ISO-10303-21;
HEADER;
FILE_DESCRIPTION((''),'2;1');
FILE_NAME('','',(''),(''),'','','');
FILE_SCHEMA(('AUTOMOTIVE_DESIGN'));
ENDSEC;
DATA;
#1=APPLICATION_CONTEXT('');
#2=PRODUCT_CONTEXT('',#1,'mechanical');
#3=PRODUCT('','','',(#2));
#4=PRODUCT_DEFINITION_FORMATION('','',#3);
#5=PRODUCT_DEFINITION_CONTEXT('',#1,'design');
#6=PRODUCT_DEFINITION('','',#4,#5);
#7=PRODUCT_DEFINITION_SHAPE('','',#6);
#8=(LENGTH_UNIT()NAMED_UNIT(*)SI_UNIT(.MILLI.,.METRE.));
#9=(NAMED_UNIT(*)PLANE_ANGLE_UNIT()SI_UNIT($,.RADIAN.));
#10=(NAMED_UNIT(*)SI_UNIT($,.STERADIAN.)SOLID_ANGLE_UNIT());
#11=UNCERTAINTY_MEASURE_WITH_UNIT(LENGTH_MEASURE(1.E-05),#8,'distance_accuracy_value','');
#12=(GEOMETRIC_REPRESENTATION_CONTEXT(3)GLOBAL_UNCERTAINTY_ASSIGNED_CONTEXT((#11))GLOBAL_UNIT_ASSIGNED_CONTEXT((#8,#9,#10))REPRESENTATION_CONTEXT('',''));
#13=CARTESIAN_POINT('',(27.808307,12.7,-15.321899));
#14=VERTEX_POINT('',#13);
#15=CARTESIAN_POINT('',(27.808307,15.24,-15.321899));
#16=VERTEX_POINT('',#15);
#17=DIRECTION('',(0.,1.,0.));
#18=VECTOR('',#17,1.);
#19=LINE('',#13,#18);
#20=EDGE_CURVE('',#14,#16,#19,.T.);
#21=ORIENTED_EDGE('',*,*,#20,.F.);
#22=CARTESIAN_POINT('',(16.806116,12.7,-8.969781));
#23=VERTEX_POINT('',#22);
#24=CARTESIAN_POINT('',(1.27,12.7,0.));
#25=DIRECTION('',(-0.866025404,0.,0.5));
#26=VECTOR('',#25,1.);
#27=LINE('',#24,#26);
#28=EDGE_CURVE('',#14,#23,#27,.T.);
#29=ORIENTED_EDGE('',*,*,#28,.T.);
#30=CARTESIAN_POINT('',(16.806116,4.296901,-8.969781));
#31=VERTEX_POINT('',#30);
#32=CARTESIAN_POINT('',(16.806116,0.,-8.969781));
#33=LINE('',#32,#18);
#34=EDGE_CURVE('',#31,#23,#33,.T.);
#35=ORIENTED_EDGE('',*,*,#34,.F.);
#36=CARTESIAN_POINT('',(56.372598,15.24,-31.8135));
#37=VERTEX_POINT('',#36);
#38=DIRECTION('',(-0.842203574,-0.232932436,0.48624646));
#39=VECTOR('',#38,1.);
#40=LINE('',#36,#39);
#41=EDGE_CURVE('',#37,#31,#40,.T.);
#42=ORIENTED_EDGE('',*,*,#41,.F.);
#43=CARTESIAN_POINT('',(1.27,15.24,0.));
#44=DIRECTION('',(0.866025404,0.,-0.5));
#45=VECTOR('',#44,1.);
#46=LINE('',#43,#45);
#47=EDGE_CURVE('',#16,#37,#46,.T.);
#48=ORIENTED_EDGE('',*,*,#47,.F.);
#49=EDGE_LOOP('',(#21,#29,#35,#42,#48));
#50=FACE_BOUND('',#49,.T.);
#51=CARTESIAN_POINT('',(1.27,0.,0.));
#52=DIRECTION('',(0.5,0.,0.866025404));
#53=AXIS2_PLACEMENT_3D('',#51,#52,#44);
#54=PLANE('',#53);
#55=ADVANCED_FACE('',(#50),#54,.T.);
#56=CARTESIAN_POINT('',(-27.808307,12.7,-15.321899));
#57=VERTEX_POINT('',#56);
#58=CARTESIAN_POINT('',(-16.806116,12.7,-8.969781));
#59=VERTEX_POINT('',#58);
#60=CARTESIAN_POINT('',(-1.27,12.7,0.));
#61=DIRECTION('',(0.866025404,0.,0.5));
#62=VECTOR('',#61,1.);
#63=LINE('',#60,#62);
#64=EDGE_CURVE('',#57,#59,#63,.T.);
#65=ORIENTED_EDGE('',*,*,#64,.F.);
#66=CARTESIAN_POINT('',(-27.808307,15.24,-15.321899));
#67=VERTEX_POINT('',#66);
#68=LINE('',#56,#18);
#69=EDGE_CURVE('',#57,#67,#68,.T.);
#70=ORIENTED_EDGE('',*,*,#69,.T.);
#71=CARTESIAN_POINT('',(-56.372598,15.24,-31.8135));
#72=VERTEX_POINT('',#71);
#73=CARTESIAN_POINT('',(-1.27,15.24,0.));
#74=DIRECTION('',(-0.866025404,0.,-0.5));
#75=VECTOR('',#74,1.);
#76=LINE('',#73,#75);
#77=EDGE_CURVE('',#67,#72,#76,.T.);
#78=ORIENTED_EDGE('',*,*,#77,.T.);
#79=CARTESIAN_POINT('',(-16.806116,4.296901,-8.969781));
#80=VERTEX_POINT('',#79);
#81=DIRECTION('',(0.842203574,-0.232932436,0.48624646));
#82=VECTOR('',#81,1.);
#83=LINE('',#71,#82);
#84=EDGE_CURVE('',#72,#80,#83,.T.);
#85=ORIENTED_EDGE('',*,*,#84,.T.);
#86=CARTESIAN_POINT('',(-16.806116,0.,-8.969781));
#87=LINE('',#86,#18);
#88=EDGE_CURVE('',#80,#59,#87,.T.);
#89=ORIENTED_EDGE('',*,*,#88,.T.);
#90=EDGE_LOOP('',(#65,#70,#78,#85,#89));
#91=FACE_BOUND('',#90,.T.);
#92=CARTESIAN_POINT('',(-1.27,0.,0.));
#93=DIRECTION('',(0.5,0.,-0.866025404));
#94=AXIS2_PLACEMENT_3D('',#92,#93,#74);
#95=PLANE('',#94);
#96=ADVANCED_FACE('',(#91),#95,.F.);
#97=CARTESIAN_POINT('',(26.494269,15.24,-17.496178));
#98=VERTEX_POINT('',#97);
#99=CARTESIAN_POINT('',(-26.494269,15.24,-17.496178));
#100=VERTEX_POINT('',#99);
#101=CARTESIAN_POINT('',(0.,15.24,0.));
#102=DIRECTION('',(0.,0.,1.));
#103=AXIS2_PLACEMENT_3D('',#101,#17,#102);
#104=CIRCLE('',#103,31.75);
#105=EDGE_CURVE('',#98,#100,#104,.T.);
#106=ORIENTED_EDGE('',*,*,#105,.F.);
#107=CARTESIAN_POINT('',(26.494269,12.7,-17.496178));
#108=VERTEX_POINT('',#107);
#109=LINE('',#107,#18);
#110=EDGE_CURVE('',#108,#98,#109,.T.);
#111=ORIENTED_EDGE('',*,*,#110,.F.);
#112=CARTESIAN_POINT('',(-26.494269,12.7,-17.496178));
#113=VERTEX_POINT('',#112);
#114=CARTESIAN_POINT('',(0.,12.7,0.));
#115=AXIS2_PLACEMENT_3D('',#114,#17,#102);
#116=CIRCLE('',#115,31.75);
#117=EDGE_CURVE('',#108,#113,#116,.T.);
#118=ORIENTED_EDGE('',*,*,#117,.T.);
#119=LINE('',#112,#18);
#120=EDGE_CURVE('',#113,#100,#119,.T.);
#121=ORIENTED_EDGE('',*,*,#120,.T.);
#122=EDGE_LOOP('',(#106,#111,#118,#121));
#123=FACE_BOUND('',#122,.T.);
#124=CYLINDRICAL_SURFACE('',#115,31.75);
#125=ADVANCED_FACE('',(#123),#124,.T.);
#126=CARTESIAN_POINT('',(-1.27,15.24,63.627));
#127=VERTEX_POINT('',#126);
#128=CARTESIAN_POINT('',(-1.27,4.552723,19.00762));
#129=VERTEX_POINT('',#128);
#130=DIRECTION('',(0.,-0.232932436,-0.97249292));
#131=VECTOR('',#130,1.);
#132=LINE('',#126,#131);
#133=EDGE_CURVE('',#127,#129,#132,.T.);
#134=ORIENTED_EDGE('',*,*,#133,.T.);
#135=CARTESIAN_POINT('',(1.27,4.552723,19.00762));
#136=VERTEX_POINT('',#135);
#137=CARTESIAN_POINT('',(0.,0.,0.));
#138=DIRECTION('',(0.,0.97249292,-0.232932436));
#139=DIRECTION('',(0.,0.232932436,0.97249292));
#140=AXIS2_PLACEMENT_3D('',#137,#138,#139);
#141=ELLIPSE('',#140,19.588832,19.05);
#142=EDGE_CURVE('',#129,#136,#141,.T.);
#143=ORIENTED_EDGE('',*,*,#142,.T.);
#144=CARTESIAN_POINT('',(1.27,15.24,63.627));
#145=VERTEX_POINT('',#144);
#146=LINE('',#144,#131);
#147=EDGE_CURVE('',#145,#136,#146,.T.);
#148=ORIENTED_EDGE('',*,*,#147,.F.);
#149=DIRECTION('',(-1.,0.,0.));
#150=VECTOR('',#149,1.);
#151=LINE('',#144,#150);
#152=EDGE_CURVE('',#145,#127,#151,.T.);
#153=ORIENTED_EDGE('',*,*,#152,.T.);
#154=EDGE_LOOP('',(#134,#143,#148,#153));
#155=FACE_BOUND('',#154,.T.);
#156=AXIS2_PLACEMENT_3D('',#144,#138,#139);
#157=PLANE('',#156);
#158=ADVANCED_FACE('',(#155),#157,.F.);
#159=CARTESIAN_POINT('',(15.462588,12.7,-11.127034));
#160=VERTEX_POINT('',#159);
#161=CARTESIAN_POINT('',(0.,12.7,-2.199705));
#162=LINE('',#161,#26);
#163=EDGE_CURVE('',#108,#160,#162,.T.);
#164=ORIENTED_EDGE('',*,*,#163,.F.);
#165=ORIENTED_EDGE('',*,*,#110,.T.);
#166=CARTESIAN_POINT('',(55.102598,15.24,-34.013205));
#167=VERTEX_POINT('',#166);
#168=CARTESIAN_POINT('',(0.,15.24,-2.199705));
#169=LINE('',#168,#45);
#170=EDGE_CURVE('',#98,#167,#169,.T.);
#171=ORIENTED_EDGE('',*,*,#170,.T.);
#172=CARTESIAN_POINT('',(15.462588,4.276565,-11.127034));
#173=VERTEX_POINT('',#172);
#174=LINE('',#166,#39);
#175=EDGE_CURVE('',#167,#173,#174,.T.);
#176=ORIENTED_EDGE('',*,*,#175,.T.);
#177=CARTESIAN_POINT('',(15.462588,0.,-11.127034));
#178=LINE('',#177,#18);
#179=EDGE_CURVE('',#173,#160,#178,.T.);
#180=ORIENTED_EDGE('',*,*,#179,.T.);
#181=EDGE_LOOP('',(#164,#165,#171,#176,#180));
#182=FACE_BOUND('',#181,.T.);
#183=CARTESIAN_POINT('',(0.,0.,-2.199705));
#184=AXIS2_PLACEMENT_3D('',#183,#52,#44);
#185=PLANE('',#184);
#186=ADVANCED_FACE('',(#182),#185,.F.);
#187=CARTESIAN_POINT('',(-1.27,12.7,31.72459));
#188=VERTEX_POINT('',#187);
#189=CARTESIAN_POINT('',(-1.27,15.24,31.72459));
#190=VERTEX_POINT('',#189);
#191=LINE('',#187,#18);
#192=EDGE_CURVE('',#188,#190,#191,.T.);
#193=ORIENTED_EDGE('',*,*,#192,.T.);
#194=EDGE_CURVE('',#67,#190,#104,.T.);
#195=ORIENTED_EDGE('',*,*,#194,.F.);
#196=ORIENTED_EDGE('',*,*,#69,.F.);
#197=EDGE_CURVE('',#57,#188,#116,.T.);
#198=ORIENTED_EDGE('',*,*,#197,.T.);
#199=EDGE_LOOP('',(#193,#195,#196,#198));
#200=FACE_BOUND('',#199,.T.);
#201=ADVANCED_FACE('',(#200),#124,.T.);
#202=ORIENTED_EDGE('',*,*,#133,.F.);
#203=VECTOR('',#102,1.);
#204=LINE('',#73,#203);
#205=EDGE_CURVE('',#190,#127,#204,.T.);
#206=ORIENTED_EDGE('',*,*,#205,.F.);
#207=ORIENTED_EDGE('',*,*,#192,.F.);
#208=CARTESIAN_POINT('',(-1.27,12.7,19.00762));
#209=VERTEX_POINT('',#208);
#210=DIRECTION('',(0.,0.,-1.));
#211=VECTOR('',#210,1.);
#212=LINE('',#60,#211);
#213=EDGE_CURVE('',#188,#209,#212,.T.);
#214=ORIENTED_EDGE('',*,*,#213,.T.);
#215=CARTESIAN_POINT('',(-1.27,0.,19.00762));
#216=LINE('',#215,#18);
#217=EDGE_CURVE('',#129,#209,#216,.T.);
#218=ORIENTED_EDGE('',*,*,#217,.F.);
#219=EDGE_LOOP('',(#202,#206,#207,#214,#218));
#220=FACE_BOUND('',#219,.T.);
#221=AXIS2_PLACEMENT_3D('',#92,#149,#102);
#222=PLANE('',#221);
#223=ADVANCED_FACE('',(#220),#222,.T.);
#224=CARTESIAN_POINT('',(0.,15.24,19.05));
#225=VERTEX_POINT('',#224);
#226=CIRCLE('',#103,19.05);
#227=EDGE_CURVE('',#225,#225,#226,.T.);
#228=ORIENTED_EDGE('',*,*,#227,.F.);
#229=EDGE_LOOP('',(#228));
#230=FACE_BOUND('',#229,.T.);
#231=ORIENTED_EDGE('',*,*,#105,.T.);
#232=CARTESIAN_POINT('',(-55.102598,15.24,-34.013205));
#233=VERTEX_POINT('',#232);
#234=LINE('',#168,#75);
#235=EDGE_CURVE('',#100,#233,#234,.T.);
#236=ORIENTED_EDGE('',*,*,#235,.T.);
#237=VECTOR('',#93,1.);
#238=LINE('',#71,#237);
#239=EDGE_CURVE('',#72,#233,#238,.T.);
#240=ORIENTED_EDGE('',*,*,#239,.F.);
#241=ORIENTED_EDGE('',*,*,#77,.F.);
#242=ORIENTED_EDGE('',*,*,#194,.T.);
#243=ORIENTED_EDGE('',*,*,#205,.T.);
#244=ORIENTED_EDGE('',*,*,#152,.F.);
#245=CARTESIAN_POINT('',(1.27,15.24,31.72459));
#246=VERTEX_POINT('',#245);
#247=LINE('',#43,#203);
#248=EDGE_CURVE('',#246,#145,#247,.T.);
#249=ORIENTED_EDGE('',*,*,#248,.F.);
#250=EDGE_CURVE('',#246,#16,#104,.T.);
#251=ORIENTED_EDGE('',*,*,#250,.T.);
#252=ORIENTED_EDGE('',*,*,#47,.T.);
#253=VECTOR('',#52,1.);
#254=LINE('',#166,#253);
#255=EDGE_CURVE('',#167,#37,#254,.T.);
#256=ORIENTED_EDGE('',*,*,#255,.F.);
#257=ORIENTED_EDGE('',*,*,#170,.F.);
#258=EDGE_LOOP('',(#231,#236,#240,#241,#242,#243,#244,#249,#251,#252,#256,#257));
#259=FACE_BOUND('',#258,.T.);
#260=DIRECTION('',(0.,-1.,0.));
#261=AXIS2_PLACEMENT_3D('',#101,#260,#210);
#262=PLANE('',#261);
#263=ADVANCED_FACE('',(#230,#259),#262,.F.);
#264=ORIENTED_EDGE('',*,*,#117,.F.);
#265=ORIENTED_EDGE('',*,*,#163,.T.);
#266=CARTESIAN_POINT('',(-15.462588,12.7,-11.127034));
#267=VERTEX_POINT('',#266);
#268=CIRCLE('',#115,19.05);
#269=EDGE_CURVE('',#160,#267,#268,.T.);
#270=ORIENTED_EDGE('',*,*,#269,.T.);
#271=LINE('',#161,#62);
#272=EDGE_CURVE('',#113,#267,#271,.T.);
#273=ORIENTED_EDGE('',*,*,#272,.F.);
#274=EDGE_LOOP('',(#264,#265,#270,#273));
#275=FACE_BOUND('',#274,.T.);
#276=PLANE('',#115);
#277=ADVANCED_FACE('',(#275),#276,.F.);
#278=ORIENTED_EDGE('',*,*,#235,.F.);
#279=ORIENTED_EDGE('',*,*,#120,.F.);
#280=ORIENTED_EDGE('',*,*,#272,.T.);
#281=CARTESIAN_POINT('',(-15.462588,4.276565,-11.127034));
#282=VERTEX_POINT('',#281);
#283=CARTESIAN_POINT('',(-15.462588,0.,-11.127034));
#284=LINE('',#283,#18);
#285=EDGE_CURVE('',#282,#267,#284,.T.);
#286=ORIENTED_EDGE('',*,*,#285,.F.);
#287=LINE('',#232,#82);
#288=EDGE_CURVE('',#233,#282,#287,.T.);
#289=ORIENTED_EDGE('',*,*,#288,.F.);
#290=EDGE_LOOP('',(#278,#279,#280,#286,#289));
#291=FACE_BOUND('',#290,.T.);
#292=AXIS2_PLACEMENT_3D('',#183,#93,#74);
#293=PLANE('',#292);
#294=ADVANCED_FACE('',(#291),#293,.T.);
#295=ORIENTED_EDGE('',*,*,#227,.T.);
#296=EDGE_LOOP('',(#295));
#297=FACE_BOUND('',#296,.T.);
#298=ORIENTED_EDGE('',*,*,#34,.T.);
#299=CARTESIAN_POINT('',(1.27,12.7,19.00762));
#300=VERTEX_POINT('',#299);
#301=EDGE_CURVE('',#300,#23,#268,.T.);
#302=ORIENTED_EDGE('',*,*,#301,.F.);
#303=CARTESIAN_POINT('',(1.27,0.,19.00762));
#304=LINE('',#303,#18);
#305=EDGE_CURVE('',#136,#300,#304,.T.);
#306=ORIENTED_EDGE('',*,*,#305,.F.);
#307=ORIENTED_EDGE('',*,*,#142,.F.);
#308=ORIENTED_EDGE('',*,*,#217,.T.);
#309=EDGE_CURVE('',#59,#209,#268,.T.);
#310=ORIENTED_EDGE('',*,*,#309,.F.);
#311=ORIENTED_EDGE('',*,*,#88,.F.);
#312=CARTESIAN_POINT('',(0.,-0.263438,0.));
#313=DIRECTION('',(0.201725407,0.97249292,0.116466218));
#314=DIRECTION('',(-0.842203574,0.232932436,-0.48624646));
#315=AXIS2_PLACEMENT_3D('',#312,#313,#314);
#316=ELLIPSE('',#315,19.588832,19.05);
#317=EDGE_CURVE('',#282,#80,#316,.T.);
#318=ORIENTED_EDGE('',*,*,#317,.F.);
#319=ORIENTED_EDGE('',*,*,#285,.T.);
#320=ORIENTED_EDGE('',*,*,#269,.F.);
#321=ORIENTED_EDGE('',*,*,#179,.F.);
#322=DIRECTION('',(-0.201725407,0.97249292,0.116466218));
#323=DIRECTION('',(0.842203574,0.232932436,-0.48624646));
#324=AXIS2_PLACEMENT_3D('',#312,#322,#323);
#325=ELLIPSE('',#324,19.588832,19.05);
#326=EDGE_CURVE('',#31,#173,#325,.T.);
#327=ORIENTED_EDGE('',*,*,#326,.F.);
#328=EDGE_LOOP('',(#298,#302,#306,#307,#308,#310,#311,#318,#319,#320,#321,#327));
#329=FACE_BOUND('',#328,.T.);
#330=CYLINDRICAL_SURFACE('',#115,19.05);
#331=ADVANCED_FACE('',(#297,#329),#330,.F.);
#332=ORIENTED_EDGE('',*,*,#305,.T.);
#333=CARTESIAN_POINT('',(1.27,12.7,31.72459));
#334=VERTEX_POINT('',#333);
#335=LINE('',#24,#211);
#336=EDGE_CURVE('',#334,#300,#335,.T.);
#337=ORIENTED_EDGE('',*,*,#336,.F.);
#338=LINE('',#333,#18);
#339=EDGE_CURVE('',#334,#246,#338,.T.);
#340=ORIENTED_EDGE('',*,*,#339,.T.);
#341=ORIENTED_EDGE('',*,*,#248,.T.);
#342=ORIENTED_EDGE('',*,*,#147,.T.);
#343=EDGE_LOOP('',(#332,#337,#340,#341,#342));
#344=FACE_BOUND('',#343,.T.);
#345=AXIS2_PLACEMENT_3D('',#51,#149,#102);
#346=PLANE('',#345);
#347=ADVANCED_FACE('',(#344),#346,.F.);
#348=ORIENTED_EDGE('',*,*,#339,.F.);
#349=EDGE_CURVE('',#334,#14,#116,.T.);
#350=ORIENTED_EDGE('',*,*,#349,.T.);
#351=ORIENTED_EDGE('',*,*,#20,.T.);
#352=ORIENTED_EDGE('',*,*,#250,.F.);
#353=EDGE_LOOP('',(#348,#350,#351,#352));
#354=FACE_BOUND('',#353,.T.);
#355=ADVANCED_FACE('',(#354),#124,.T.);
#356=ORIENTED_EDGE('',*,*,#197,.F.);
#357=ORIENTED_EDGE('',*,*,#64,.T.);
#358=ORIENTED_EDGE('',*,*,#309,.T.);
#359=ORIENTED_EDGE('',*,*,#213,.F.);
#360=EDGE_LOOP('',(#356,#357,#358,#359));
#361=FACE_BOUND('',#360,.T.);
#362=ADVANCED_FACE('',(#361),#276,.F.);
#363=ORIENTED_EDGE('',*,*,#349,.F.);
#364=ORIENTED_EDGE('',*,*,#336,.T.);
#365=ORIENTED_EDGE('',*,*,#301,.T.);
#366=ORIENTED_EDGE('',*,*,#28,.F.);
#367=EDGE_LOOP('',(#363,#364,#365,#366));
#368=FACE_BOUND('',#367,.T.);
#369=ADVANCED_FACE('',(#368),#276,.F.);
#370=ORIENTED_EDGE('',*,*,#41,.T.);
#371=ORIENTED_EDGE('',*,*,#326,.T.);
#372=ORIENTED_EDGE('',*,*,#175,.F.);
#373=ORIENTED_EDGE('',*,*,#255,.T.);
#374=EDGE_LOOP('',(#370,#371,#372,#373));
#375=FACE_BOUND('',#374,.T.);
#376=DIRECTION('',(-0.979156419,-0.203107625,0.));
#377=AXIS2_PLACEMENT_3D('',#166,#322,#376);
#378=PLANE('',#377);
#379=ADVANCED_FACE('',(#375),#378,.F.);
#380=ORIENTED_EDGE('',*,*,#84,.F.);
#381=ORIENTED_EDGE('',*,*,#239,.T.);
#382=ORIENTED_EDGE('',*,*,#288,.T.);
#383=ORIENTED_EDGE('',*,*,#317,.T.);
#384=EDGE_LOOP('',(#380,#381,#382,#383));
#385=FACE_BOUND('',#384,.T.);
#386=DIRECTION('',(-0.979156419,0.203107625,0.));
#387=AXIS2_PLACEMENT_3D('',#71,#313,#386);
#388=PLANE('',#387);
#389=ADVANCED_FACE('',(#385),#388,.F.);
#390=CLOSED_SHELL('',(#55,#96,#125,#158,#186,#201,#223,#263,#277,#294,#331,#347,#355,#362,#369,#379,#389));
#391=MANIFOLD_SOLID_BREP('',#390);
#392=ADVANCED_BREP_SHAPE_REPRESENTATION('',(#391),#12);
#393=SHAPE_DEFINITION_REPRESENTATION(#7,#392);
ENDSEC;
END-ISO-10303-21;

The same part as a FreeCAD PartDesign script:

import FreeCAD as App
import Part
import Sketcher
Q = App.Units.Quantity

doc = App.newDocument("Part")
body = doc.addObject("PartDesign::Body", "Body")

sketch1 = body.newObject("Sketcher::SketchObject", "Sketch")
sketch1.AttachmentSupport = (doc.getObject("XZ_Plane"), [""])
sketch1.MapMode = "FlatFace"
sketch1.addGeometry([
    Part.LineSegment(App.Vector(0, -2.2, 0), App.Vector(-1.3, 0, 0)),
    Part.LineSegment(App.Vector(-1.3, 0, 0), App.Vector(1.3, 0, 0)),
    Part.LineSegment(App.Vector(1.3, 0, 0), App.Vector(0, -2.2, 0)),
], False)
sketch1.addConstraint([
    Sketcher.Constraint("Coincident", 0, 2, 1, 1),
    Sketcher.Constraint("Coincident", 1, 2, 2, 1),
    Sketcher.Constraint("Coincident", 2, 2, 0, 1),
    Sketcher.Constraint("Horizontal", 1),
    Sketcher.Constraint("Symmetric", 0, 2, 1, 2, -1, 1),
    Sketcher.Constraint("PointOnObject", 2, 2, -2),
    Sketcher.Constraint("DistanceX", 1, 1, 1, 2, Q("0.1 in")),
    Sketcher.Constraint("Angle", 0, Q("120 deg")),
])
pad1 = body.newObject("PartDesign::Pad", "Pad")
pad1.Profile = sketch1
pad1.Length = Q("0.6 in")
pad1.Reversed = True

sketch2 = body.newObject("Sketcher::SketchObject", "Sketch001")
sketch2.AttachmentSupport = (doc.getObject("YZ_Plane"), [""])
sketch2.MapMode = "FlatFace"
sketch2.addGeometry([
    Part.LineSegment(App.Vector(15, 0, 0), App.Vector(15, 64, 0)),
    Part.LineSegment(App.Vector(15, 64, 0), App.Vector(0, 0, 0)),
    Part.LineSegment(App.Vector(0, 0, 0), App.Vector(15, 0, 0)),
], False)
sketch2.addConstraint([
    Sketcher.Constraint("Coincident", 0, 2, 1, 1),
    Sketcher.Constraint("Coincident", 1, 2, 2, 1),
    Sketcher.Constraint("Coincident", 2, 2, 0, 1),
    Sketcher.Constraint("Vertical", 0),
    Sketcher.Constraint("Horizontal", 2),
    Sketcher.Constraint("Coincident", 1, 2, -1, 1),
    Sketcher.Constraint("DistanceX", 2, 1, 2, 2, Q("0.6 in")),
    Sketcher.Constraint("DistanceY", 0, 1, 0, 2, Q("2.505 in")),
])
pad2 = body.newObject("PartDesign::Pad", "Pad001")
pad2.Profile = sketch2
pad2.Length = Q("0.1 in")
pad2.Midplane = True
doc.recompute()

datumline = body.newObject("PartDesign::Line", "DatumLine")
datumline.Placement = App.Placement(App.Vector(0, 0, -0.733235), App.Rotation(App.Vector(0, 0, 1), App.Vector(0, 1, 0)))
polarpattern = body.newObject("PartDesign::PolarPattern", "PolarPattern")
polarpattern.Originals = [pad2]
polarpattern.Axis = (datumline, [""])
polarpattern.Angle = 360
polarpattern.Occurrences = 3
body.Tip = polarpattern

sketch3 = body.newObject("Sketcher::SketchObject", "Sketch002")
sketch3.AttachmentSupport = (doc.getObject("XZ_Plane"), [""])
sketch3.MapMode = "FlatFace"
sketch3.AttachmentOffset = App.Placement(App.Vector(0, 0, -0.6 * 25.4), App.Rotation())
sketch3.addGeometry([
    Part.Circle(App.Vector(0, 0, 0), App.Vector(0, 0, 1), 32),
    Part.Circle(App.Vector(0, 0, 0), App.Vector(0, 0, 1), 19),
], False)
sketch3.addConstraint([
    Sketcher.Constraint("Coincident", 0, 3, -1, 1),
    Sketcher.Constraint("Coincident", 1, 3, -1, 1),
    Sketcher.Constraint("Diameter", 0, Q("2.5 in")),
    Sketcher.Constraint("Diameter", 1, Q("1.5 in")),
])
pad3 = body.newObject("PartDesign::Pad", "Pad002")
pad3.Profile = sketch3
pad3.Length = Q("0.1 in")

sketch4 = body.newObject("Sketcher::SketchObject", "Sketch003")
sketch4.AttachmentSupport = (doc.getObject("XZ_Plane"), [""])
sketch4.MapMode = "FlatFace"
sketch4.AttachmentOffset = App.Placement(App.Vector(0, 0, -0.6 * 25.4), App.Rotation())
sketch4.addGeometry(Part.Circle(App.Vector(0, 0, 0), App.Vector(0, 0, 1), 19), False)
sketch4.addConstraint([
    Sketcher.Constraint("Coincident", 0, 3, -1, 1),
    Sketcher.Constraint("Diameter", 0, Q("1.5 in")),
])
pocket1 = body.newObject("PartDesign::Pocket", "Pocket")
pocket1.Profile = sketch4
pocket1.Type = "ThroughAll"
pocket1.Reversed = True

doc.recompute()
